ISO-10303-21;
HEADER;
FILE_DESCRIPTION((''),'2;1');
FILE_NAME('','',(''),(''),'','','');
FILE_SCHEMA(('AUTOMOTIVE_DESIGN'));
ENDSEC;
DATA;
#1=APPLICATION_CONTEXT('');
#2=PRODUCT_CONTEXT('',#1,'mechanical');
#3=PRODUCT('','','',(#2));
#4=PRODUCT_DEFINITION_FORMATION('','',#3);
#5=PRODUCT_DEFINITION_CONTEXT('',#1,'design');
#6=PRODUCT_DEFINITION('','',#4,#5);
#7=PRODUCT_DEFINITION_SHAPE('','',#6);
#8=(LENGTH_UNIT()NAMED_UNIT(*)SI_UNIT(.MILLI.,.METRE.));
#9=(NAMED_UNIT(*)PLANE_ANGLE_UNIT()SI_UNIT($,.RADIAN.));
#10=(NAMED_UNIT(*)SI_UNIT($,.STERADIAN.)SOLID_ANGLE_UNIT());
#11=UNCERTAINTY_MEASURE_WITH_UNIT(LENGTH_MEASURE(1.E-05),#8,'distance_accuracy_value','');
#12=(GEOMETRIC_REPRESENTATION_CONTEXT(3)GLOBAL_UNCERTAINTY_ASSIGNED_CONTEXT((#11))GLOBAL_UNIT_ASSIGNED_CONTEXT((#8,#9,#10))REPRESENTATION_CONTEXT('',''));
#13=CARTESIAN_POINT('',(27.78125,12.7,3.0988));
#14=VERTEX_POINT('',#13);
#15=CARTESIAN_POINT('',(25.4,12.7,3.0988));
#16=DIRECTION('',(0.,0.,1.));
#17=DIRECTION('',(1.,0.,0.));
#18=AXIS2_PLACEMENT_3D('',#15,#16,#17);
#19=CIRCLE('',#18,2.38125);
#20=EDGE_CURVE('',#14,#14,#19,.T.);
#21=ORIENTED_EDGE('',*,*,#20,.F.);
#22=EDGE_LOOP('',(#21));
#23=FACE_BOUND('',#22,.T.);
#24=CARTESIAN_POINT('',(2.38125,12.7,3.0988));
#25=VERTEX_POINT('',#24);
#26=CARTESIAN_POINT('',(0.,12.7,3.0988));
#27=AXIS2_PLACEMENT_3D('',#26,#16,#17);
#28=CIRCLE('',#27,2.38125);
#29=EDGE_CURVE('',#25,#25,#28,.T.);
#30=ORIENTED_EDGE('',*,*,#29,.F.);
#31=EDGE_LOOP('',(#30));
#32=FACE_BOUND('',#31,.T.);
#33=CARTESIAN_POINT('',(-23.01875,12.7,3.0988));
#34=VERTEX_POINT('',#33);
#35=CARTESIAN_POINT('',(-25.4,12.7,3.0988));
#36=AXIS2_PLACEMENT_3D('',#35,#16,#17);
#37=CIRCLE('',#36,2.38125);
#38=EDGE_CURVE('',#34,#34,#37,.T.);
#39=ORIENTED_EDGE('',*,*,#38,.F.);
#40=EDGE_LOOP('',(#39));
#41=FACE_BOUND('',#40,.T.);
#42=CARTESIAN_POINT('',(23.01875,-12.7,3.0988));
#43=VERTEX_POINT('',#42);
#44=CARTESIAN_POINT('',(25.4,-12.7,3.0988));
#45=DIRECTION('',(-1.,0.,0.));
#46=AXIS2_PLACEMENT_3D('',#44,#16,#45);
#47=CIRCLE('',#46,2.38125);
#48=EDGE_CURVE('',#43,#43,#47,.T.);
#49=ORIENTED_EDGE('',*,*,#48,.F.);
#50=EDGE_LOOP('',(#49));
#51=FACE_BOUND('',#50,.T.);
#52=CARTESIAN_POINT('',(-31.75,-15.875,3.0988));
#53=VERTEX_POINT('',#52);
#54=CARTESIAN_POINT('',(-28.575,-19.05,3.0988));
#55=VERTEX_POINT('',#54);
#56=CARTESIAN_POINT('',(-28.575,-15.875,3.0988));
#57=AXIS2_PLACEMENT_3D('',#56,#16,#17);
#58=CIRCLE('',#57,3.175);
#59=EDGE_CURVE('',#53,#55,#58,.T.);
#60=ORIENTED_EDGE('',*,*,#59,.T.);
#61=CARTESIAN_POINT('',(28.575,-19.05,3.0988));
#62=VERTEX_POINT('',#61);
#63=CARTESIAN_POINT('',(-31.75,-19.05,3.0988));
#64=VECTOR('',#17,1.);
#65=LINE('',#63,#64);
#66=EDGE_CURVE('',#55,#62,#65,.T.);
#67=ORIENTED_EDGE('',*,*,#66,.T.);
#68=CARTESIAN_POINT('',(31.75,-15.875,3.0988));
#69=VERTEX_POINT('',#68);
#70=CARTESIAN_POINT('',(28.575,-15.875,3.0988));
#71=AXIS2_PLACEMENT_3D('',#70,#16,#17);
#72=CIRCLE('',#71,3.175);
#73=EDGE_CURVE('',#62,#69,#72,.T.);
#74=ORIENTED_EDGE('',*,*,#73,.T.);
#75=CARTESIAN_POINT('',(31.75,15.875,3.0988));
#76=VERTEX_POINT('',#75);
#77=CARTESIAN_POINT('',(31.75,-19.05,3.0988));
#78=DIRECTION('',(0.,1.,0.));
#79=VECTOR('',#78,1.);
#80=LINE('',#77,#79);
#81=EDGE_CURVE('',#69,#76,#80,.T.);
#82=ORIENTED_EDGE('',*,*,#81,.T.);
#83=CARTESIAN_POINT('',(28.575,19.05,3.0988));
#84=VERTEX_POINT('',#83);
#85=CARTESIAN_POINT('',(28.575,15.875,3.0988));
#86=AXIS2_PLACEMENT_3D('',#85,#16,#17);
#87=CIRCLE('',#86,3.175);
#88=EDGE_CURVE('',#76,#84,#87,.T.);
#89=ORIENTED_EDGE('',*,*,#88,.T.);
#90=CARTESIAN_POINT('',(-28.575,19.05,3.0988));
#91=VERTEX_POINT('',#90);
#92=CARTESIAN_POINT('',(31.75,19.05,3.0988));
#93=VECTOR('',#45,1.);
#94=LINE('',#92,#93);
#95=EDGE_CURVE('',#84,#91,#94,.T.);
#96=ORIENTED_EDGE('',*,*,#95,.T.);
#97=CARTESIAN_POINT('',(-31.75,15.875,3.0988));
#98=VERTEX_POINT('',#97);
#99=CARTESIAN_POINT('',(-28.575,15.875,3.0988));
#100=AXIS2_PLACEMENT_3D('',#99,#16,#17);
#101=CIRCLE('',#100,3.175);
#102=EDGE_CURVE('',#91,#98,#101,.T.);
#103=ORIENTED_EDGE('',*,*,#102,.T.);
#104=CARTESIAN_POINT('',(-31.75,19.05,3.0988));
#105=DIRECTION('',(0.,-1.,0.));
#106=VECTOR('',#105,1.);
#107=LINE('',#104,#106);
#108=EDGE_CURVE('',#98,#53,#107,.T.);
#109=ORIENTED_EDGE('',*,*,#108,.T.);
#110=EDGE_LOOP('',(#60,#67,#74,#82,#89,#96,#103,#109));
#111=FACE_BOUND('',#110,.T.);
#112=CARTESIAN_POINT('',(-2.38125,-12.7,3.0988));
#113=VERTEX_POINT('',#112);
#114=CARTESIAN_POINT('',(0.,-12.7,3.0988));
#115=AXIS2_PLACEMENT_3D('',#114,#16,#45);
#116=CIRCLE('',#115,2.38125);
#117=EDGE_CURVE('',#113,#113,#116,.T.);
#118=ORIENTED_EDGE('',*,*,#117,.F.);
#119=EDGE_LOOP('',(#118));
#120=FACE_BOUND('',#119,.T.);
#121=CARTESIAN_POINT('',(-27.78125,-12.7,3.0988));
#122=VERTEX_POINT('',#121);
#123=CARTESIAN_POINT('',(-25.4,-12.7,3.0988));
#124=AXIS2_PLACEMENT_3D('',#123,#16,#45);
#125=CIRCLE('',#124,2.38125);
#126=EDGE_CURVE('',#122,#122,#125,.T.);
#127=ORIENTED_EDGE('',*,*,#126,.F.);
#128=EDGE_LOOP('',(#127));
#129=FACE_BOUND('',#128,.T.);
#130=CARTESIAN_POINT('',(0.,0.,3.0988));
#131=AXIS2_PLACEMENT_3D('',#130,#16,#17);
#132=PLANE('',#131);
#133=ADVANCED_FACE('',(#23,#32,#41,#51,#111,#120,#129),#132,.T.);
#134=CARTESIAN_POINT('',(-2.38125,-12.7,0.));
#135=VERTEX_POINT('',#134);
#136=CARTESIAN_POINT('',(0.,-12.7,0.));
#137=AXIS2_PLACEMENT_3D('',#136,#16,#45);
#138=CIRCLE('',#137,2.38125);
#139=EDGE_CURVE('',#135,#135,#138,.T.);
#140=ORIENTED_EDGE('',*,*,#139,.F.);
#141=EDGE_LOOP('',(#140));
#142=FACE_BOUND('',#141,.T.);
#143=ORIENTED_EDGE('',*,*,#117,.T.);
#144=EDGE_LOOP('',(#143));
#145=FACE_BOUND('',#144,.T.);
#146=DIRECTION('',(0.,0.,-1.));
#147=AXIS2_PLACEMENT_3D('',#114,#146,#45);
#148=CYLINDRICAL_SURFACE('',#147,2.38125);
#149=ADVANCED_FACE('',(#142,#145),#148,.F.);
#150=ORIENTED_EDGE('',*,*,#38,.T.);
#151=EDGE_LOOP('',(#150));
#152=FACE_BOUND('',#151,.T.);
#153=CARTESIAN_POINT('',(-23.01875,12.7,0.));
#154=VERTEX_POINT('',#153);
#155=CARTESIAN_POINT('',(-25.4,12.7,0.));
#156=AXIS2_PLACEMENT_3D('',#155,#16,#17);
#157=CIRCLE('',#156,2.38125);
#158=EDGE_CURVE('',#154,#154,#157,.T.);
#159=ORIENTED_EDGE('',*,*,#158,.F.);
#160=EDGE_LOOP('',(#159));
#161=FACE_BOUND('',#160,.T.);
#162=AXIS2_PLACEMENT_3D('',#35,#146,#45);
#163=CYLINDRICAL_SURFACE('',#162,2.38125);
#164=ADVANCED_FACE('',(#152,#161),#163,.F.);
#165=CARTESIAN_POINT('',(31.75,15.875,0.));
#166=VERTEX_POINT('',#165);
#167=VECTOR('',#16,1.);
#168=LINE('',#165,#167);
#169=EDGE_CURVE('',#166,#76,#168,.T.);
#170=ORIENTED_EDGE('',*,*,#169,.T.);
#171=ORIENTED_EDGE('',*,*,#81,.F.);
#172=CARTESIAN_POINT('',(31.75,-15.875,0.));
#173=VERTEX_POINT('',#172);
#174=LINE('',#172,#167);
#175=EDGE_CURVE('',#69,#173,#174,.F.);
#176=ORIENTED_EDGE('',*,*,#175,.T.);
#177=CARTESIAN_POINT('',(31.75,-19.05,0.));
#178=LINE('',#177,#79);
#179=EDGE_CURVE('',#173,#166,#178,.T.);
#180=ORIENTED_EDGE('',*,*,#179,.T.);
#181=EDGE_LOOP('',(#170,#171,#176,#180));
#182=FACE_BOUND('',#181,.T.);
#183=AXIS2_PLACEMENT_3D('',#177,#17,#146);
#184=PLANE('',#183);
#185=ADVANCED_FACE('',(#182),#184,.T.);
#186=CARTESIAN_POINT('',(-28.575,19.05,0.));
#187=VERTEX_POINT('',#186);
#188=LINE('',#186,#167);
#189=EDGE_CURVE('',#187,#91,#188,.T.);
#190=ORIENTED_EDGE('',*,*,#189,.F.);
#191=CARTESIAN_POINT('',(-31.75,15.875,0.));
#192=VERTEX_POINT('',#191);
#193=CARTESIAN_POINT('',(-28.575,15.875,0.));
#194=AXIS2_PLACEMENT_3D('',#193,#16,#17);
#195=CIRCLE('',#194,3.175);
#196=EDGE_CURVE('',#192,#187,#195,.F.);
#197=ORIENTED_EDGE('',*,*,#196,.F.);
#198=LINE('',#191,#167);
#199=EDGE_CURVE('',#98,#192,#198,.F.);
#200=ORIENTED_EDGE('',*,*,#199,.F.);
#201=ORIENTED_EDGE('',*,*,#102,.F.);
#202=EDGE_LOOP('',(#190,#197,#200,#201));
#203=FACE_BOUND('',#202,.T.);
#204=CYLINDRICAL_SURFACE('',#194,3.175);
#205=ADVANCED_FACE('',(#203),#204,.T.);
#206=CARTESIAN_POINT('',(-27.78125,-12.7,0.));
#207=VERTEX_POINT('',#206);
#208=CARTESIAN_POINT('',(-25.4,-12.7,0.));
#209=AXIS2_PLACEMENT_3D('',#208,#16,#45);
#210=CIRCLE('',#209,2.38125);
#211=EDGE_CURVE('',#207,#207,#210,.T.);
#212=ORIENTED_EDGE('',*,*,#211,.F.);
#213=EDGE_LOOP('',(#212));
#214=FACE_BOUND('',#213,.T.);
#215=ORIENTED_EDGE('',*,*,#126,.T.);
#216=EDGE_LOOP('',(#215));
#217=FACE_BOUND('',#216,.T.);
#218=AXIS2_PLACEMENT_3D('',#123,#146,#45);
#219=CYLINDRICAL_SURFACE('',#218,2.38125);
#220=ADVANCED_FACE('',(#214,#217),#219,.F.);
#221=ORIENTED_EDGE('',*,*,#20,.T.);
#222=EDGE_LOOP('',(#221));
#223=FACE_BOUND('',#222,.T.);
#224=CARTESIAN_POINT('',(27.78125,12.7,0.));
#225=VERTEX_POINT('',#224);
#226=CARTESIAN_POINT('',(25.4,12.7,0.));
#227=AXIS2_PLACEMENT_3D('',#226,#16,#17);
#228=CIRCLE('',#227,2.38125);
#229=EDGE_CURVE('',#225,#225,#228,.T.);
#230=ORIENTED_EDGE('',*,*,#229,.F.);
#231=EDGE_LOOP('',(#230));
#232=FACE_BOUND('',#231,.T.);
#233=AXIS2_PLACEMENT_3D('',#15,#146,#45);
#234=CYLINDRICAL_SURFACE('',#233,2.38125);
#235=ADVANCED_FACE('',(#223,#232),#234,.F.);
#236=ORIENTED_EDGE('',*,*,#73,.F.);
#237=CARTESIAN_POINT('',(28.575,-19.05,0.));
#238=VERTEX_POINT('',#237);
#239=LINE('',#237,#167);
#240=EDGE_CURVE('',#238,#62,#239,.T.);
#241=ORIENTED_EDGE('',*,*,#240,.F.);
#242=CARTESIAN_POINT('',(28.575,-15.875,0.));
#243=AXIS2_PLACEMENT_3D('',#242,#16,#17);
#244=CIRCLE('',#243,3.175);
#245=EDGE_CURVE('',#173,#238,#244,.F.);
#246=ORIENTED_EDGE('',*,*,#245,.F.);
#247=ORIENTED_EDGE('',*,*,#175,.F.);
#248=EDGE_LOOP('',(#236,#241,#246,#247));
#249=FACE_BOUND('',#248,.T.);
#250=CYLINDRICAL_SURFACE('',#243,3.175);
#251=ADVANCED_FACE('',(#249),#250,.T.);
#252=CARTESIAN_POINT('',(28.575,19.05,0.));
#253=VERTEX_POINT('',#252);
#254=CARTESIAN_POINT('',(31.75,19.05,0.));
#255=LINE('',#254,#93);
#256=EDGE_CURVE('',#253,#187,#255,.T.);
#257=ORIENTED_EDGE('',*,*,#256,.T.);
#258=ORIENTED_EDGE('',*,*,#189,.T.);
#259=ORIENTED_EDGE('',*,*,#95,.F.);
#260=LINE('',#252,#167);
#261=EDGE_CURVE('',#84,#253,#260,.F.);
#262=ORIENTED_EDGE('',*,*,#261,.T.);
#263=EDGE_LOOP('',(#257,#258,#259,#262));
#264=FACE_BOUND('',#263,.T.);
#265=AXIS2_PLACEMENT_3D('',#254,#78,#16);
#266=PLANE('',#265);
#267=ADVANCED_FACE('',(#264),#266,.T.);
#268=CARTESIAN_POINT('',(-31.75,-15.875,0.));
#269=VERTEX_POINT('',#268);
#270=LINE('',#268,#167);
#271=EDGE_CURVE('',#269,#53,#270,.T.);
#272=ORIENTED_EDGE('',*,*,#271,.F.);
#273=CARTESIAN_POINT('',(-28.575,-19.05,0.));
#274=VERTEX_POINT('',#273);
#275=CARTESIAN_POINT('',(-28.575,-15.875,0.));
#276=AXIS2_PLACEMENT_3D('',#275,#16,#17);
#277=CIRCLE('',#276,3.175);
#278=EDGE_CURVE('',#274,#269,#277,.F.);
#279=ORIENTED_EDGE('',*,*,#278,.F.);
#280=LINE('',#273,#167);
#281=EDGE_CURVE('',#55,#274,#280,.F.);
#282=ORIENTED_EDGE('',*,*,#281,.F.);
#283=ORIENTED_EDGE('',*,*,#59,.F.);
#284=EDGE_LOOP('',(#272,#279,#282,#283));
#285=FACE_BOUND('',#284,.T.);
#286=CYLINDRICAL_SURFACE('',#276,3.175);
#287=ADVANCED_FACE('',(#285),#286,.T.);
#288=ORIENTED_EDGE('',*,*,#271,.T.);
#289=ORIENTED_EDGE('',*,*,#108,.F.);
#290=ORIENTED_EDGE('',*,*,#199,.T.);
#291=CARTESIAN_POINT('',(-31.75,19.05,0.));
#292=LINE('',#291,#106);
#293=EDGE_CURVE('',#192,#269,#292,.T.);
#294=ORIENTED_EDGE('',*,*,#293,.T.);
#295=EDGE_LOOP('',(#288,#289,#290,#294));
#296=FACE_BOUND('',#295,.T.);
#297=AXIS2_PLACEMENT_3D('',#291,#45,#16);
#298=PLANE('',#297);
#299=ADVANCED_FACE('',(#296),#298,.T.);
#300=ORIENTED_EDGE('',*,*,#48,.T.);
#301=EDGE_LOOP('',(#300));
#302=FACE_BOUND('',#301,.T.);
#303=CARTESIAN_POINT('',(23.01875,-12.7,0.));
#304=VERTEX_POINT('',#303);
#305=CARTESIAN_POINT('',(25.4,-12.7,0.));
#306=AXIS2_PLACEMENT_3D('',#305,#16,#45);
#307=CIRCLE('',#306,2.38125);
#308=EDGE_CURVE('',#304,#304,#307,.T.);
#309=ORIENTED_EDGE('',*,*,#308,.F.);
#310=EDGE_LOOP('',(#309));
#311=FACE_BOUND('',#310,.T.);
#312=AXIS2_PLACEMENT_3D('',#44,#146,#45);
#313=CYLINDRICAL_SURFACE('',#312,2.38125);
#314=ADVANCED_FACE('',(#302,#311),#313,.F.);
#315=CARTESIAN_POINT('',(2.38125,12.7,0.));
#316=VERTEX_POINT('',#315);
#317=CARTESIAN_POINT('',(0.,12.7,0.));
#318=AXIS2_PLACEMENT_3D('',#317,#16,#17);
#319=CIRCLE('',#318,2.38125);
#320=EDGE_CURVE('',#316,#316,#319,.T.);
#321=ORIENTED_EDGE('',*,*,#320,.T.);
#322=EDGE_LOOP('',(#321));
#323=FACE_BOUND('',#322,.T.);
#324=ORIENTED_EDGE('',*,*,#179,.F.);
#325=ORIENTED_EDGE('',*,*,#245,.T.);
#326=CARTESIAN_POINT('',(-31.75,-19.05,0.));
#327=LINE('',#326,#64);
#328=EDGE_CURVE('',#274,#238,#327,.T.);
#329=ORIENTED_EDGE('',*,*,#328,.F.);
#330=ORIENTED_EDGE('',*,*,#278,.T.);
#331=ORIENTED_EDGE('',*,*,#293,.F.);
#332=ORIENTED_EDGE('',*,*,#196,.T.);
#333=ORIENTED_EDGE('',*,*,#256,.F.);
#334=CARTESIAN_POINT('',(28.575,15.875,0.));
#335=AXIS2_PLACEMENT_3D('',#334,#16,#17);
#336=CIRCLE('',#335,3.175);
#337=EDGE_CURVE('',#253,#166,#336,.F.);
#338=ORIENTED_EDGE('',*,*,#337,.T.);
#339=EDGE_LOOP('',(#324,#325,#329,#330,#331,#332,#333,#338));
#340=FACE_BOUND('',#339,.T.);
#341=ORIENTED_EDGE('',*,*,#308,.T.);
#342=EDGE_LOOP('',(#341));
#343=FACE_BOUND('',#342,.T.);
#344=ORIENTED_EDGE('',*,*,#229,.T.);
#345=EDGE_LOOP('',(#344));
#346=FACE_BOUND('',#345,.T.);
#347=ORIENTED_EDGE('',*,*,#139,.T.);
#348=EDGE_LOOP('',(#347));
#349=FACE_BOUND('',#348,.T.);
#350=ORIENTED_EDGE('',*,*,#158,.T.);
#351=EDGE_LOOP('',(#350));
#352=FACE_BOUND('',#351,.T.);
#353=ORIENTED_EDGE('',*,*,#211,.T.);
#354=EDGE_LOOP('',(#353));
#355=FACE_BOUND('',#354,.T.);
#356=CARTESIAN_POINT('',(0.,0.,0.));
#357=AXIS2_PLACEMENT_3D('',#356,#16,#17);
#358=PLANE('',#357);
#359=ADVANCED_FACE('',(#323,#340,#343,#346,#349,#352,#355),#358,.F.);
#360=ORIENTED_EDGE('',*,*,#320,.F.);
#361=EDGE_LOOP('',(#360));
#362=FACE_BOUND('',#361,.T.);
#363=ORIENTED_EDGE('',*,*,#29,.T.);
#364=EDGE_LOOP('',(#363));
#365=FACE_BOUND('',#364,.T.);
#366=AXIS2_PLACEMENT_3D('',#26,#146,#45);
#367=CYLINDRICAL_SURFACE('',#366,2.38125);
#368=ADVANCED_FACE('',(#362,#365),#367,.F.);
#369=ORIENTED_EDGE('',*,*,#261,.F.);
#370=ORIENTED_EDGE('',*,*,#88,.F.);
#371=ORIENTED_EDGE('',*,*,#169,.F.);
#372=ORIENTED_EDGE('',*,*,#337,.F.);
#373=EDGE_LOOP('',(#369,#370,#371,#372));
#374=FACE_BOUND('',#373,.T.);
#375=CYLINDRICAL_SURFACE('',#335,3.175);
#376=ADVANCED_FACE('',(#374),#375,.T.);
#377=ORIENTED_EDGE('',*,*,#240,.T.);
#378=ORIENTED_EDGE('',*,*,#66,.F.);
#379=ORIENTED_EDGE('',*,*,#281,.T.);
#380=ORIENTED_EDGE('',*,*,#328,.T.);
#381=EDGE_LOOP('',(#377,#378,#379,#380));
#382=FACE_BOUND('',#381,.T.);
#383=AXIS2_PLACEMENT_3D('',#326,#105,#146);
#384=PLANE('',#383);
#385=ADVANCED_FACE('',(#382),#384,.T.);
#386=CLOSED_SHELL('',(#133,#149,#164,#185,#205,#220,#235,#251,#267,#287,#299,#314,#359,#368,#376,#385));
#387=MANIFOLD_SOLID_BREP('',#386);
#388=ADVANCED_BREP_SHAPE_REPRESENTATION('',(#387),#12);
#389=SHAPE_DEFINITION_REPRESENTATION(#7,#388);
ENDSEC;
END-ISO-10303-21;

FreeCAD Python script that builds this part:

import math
import FreeCAD as App
import Part
import Sketcher
Q = App.Units.Quantity


def edges_at(feature, points):
    """Names of the edges that pass closest to the given points."""
    edges = feature.Shape.Edges
    near = lambda p: min(range(len(edges)), key=lambda i: edges[i].distToShape(Part.Vertex(*p))[0])
    return sorted({f"Edge{near(p) + 1}" for p in points})

doc = App.newDocument("Part")
body = doc.addObject("PartDesign::Body", "Body")

# Sketch on XY plane
sketch1 = doc.addObject("Sketcher::SketchObject", "Sketch")
body.addObject(sketch1)
sketch1.AttachmentSupport = (doc.XY_Plane, [""])
sketch1.MapMode = "FlatFace"
sketch1.addGeometry([
    Part.LineSegment(App.Vector(-38.1, 25.4, 0), App.Vector(-38.1, -25.4, 0)),  # 0
    Part.LineSegment(App.Vector(-38.1, -25.4, 0), App.Vector(38.1, -25.4, 0)),  # 1
    Part.LineSegment(App.Vector(38.1, -25.4, 0), App.Vector(38.1, 25.4, 0)),  # 2
    Part.LineSegment(App.Vector(38.1, 25.4, 0), App.Vector(-38.1, 25.4, 0)),  # 3
    Part.Circle(App.Vector(-25.4, -12.7, 0), App.Vector(0, 0, 1), 2.38125),  # 4
    Part.Circle(App.Vector(0, -12.7, 0), App.Vector(0, 0, 1), 2.38125),  # 5
    Part.Circle(App.Vector(25.4, -12.7, 0), App.Vector(0, 0, 1), 2.38125),  # 6
    Part.Circle(App.Vector(-25.4, 12.7, 0), App.Vector(0, 0, 1), 2.38125),  # 7
    Part.Circle(App.Vector(0, 12.7, 0), App.Vector(0, 0, 1), 2.38125),  # 8
    Part.Circle(App.Vector(25.4, 12.7, 0), App.Vector(0, 0, 1), 2.38125),  # 9
], False)
sketch1.addConstraint([
    Sketcher.Constraint("Coincident", 0, 2, 1, 1),
    Sketcher.Constraint("Coincident", 1, 2, 2, 1),
    Sketcher.Constraint("Coincident", 2, 2, 3, 1),
    Sketcher.Constraint("Coincident", 3, 2, 0, 1),
    Sketcher.Constraint("Vertical", 0),
    Sketcher.Constraint("Horizontal", 1),
    Sketcher.Constraint("Vertical", 2),
    Sketcher.Constraint("Horizontal", 3),
    Sketcher.Constraint("Equal", 4, 5),
    Sketcher.Constraint("Equal", 5, 6),
    Sketcher.Constraint("Equal", 6, 7),
    Sketcher.Constraint("Equal", 7, 8),
    Sketcher.Constraint("Equal", 8, 9),
    Sketcher.Constraint("Symmetric", 6, 3, 7, 3, -1, 1),
    Sketcher.Constraint("Symmetric", 5, 3, 8, 3, -1, 1),
    Sketcher.Constraint("Symmetric", 4, 3, 9, 3, -1, 1),
    Sketcher.Constraint("Symmetric", 0, 2, 2, 2, -1, 1),
    Sketcher.Constraint("Symmetric", 4, 3, 6, 3, -2),
    Sketcher.Constraint("PointOnObject", 5, 3, -2),
    Sketcher.Constraint("Horizontal", 4, 3, 5, 3),
    Sketcher.Constraint("DistanceX", 1, 1, 1, 2, Q("3 in")),
    Sketcher.Constraint("DistanceY", 0, 2, 0, 1, Q("2 in")),
    Sketcher.Constraint("Diameter", 4, Q("0.1875 in")),
    Sketcher.Constraint("DistanceX", 4, 3, -1, 1, Q("1 in")),
    Sketcher.Constraint("DistanceY", 4, 3, 7, 3, Q("1 in")),
])
pad1 = doc.addObject("PartDesign::Pad", "Pad")
body.addObject(pad1)
pad1.Profile = sketch1
pad1.Length = Q("0.122 in")
doc.recompute()

fillet = doc.addObject("PartDesign::Fillet", "Fillet")
body.addObject(fillet)
fillet.Base = (pad1, edges_at(pad1, [
    (-38.1, 25.4, 1.549),
    (38.1, 25.4, 1.549),
    (38.1, -25.4, 1.549),
    (-38.1, -25.4, 1.549),
]))
fillet.Radius = Q("0.125 in")

# Sketch on XY plane
sketch2 = doc.addObject("Sketcher::SketchObject", "Sketch001")
body.addObject(sketch2)
sketch2.AttachmentSupport = (doc.XY_Plane, [""])
sketch2.MapMode = "FlatFace"
sketch2.AttachmentOffset = App.Placement(App.Vector(0, 0, 0.122 * 25.4), App.Rotation())
sketch2.addGeometry([
    Part.LineSegment(App.Vector(38.1, -22.225, 0), App.Vector(38.1, 22.225, 0)),  # 0
    Part.ArcOfCircle(Part.Circle(App.Vector(34.925, 22.225, 0), App.Vector(0, 0, 1), 3.175), math.radians(0), math.radians(90)),  # 1
    Part.LineSegment(App.Vector(34.925, 25.4, 0), App.Vector(-34.925, 25.4, 0)),  # 2
    Part.ArcOfCircle(Part.Circle(App.Vector(-34.925, 22.225, 0), App.Vector(0, 0, 1), 3.175), math.radians(90), math.radians(180)),  # 3
    Part.LineSegment(App.Vector(-38.1, 22.225, 0), App.Vector(-38.1, -22.225, 0)),  # 4
    Part.ArcOfCircle(Part.Circle(App.Vector(-34.925, -22.225, 0), App.Vector(0, 0, 1), 3.175), math.radians(-180), math.radians(-90)),  # 5
    Part.LineSegment(App.Vector(-34.925, -25.4, 0), App.Vector(34.925, -25.4, 0)),  # 6
    Part.ArcOfCircle(Part.Circle(App.Vector(34.925, -22.225, 0), App.Vector(0, 0, 1), 3.175), math.radians(-90), math.radians(0)),  # 7
    Part.LineSegment(App.Vector(31.75, -19.05, 0), App.Vector(-31.75, -19.05, 0)),  # 8
    Part.LineSegment(App.Vector(-31.75, -19.05, 0), App.Vector(-31.75, 19.05, 0)),  # 9
    Part.LineSegment(App.Vector(-31.75, 19.05, 0), App.Vector(31.75, 19.05, 0)),  # 10
    Part.LineSegment(App.Vector(31.75, 19.05, 0), App.Vector(31.75, -19.05, 0)),  # 11
], False)
sketch2.addConstraint([
    Sketcher.Constraint("Tangent", 0, 2, 1, 1),
    Sketcher.Constraint("Tangent", 1, 2, 2, 1),
    Sketcher.Constraint("Tangent", 2, 2, 3, 1),
    Sketcher.Constraint("Tangent", 3, 2, 4, 1),
    Sketcher.Constraint("Tangent", 4, 2, 5, 1),
    Sketcher.Constraint("Tangent", 5, 2, 6, 1),
    Sketcher.Constraint("Tangent", 6, 2, 7, 1),
    Sketcher.Constraint("Tangent", 7, 2, 0, 1),
    Sketcher.Constraint("Coincident", 8, 2, 9, 1),
    Sketcher.Constraint("Coincident", 9, 2, 10, 1),
    Sketcher.Constraint("Coincident", 10, 2, 11, 1),
    Sketcher.Constraint("Coincident", 11, 2, 8, 1),
    Sketcher.Constraint("Vertical", 0),
    Sketcher.Constraint("Horizontal", 2),
    Sketcher.Constraint("Vertical", 4),
    Sketcher.Constraint("Horizontal", 6),
    Sketcher.Constraint("Horizontal", 8),
    Sketcher.Constraint("Vertical", 9),
    Sketcher.Constraint("Horizontal", 10),
    Sketcher.Constraint("Vertical", 11),
    Sketcher.Constraint("Equal", 1, 3),
    Sketcher.Constraint("Equal", 3, 5),
    Sketcher.Constraint("Equal", 5, 7),
    Sketcher.Constraint("Symmetric", 1, 3, 5, 3, -1, 1),
    Sketcher.Constraint("Symmetric", 8, 2, 10, 2, -1, 1),
    Sketcher.Constraint("DistanceX", 8, 2, 8, 1, Q("2.5 in")),
    Sketcher.Constraint("DistanceY", 9, 1, 9, 2, Q("1.5 in")),
    Sketcher.Constraint("DistanceY", -1, 1, 1, 2, Q("1 in")),
    Sketcher.Constraint("Radius", 1, Q("0.125 in")),
    Sketcher.Constraint("DistanceX", 2, 2, 2, 1, Q("2.75 in")),
])
pocket1 = doc.addObject("PartDesign::Pocket", "Pocket")
body.addObject(pocket1)
pocket1.Profile = sketch2
pocket1.Type = "ThroughAll"
doc.recompute()

fillet2 = doc.addObject("PartDesign::Fillet", "Fillet001")
body.addObject(fillet2)
fillet2.Base = (pocket1, edges_at(pocket1, [
    (31.75, -19.05, 1.549),
    (-31.75, -19.05, 1.549),
    (-31.75, 19.05, 1.549),
    (31.75, 19.05, 1.549),
]))
fillet2.Radius = Q("0.125 in")

doc.recompute()
